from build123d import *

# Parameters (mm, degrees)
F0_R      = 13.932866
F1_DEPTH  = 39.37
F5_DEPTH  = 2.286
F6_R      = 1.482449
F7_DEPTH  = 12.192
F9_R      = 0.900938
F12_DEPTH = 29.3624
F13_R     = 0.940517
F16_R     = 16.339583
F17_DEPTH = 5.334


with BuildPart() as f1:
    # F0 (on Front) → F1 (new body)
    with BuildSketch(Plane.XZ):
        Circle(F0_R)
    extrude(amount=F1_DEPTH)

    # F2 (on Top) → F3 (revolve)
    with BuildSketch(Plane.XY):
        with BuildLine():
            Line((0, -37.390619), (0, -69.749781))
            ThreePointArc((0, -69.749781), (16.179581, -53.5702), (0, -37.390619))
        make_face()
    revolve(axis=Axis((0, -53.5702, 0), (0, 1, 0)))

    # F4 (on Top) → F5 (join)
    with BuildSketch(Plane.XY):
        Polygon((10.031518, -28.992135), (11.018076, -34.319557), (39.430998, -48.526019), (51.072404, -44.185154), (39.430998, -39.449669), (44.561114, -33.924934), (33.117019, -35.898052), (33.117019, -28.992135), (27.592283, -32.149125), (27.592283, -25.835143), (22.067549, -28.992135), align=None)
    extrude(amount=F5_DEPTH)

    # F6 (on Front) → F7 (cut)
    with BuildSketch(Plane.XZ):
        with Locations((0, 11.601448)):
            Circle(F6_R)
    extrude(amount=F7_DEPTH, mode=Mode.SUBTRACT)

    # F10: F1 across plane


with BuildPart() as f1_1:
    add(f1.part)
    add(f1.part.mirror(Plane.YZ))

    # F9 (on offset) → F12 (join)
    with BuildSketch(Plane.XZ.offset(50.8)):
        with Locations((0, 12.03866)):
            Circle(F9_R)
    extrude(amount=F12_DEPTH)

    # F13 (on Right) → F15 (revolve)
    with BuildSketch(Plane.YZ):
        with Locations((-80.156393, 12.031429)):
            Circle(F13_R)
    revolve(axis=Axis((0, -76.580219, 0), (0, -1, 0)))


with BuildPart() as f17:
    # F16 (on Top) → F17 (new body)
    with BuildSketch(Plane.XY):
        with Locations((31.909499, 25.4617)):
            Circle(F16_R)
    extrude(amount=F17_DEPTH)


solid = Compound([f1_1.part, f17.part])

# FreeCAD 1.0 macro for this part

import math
import FreeCAD as App
import Part
import Sketcher
from FreeCAD import Vector
Q = App.Units.Quantity


def add_polygon(sketch, points):
    """Adds a closed chain of lines whose ends are joined by coincident constraints."""
    first, n = sketch.GeometryCount, len(points)
    for a, b in zip(points, points[1:] + points[:1]):
        sketch.addGeometry(Part.LineSegment(App.Vector(*a, 0), App.Vector(*b, 0)), False)
    for i in range(n):
        sketch.addConstraint(Sketcher.Constraint("Coincident", first + i, 2, first + (i + 1) % n, 1))

doc = App.newDocument("Part")
body = doc.addObject("PartDesign::Body", "Body")

# Sketch on XZ plane
sketch1 = body.newObject("Sketcher::SketchObject", "Sketch")
sketch1.AttachmentSupport = (doc.getObject("XZ_Plane"), [""])
sketch1.MapMode = "FlatFace"
sketch1.addGeometry(Part.Circle(Vector(0, 0, 0), Vector(0, 0, 1), 14), False)
sketch1.addConstraint([
    Sketcher.Constraint("Coincident", 0, 3, -1, 1),
    Sketcher.Constraint("Diameter", 0, 27.865732),
])
pad1 = body.newObject("PartDesign::Pad", "Pad")
pad1.Profile = sketch1
pad1.Length = Q("1.55 in")

# Sketch on XY plane
sketch2 = body.newObject("Sketcher::SketchObject", "Sketch001")
sketch2.AttachmentSupport = (doc.getObject("XY_Plane"), [""])
sketch2.MapMode = "FlatFace"
sketch2.addGeometry([
    Part.LineSegment(Vector(0, -37, 0), Vector(0, -70, 0)),
    Part.ArcOfCircle(Part.Circle(Vector(0, -54, 0), Vector(0, 0, 1), 16), math.radians(-90), math.radians(90)),
], False)
sketch2.addConstraint([
    Sketcher.Constraint("Coincident", 0, 1, 1, 2),
    Sketcher.Constraint("Coincident", 1, 1, 0, 2),
    Sketcher.Constraint("Vertical", 0),
    Sketcher.Constraint("PointOnObject", 1, 3, -2),
    Sketcher.Constraint("PointOnObject", 0, 1, -2),
    Sketcher.Constraint("Radius", 1, 16.179581),
    Sketcher.Constraint("DistanceY", 1, 3, -1, 1, 53.5702),
])
revolution = body.newObject("PartDesign::Revolution", "Revolution")
revolution.Profile = sketch2
revolution.ReferenceAxis = (sketch2, ["V_Axis"])
revolution.Angle = 360

# Sketch on XY plane
sketch3 = body.newObject("Sketcher::SketchObject", "Sketch002")
sketch3.AttachmentSupport = (doc.getObject("XY_Plane"), [""])
sketch3.MapMode = "FlatFace"
add_polygon(sketch3, [(10, -29), (11, -34), (39, -49), (51, -44), (39, -39), (45, -34), (33, -36), (33, -29), (28, -32), (28, -26), (22, -29)])  # lines 0-10
sketch3.addConstraint([
    Sketcher.Constraint("Vertical", 6),
    Sketcher.Constraint("Vertical", 8),
    Sketcher.Constraint("Horizontal", 10),
    Sketcher.Constraint("Parallel", 7, 9),
    Sketcher.Constraint("Horizontal", 6, 2, 9, 2),
    Sketcher.Constraint("Vertical", 1, 2, 3, 2),
    Sketcher.Constraint("Equal", 7, 9),
    Sketcher.Constraint("DistanceY", 1, 2, 2, 2, Q("0.1709002 in")),
    Sketcher.Constraint("Distance", 0, 5.418),
    Sketcher.Constraint("DistanceX", 10, 2, 10, 1, 12.036031),
    Sketcher.Constraint("DistanceY", 8, 1, 8, 2, 6.313982),
    Sketcher.Constraint("DistanceX", -1, 1, 1, 2, 39.430998),
    Sketcher.Constraint("DistanceY", 2, 2, 5, 2, 8.287102),
    Sketcher.Constraint("DistanceY", 4, 2, 6, 2, 4.932799),
    Sketcher.Constraint("DistanceX", 10, 2, 6, 2, 23.085501),
    Sketcher.Constraint("Distance", 2, 12.424389),
    Sketcher.Constraint("DistanceY", 6, 1, 6, 2, 6.905917),
    Sketcher.Constraint("DistanceY", 1, 2, -1, 1, 48.526019),
    Sketcher.Constraint("DistanceY", 3, 2, -1, 1, 39.449669),
    Sketcher.Constraint("DistanceX", -1, 1, 5, 2, 33.117019),
    Sketcher.Constraint("DistanceY", 1, 2, 0, 2, 14.206462),
    Sketcher.Constraint("DistanceX", 4, 2, 2, 2, 6.51129),
])
pad2 = body.newObject("PartDesign::Pad", "Pad001")
pad2.Profile = sketch3
pad2.Length = Q("0.09 in")

# Sketch on XZ plane
sketch4 = body.newObject("Sketcher::SketchObject", "Sketch003")
sketch4.AttachmentSupport = (doc.getObject("XZ_Plane"), [""])
sketch4.MapMode = "FlatFace"
sketch4.addGeometry(Part.Circle(Vector(0, 11.6, 0), Vector(0, 0, 1), 1.5), False)
sketch4.addConstraint([
    Sketcher.Constraint("PointOnObject", 0, 3, -2),
    Sketcher.Constraint("Diameter", 0, 2.964898),
    Sketcher.Constraint("DistanceY", -1, 1, 0, 3, 11.601448),
])
pocket1 = body.newObject("PartDesign::Pocket", "Pocket")
pocket1.Profile = sketch4
pocket1.Length = Q("0.48 in")
pocket1.Reversed = True
body2 = doc.addObject("PartDesign::Body", "Body001")
doc.recompute()

body2.BaseFeature = body
doc.recompute()

mirroring = doc.addObject("Part::Mirroring", "Mirroring")
mirroring.Source = body
mirroring.Base = Vector(0, 0, 0)
mirroring.Normal = Vector(1, 0, 0)
body3 = doc.addObject("PartDesign::Body", "Body002")
body3.BaseFeature = mirroring
boolean = body2.newObject("PartDesign::Boolean", "Boolean")
boolean.Type = "Fuse"
boolean.addObjects([body3])
doc.recompute()

# Sketch on XZ plane
sketch5 = body2.newObject("Sketcher::SketchObject", "Sketch004")
sketch5.AttachmentSupport = (doc.getObject("XZ_Plane001"), [""])
sketch5.MapMode = "FlatFace"
sketch5.AttachmentOffset = App.Placement(Vector(0, 0, 2 * 25.4), App.Rotation())
sketch5.addGeometry(Part.Circle(Vector(0, 12, 0), Vector(0, 0, 1), 0.9), False)
sketch5.addConstraint([
    Sketcher.Constraint("PointOnObject", 0, 3, -2),
    Sketcher.Constraint("Diameter", 0, 1.801876),
    Sketcher.Constraint("DistanceY", -1, 1, 0, 3, 12.03866),
])
pad3 = body2.newObject("PartDesign::Pad", "Pad002")
pad3.Profile = sketch5
pad3.Length = Q("1.156 in")

# Sketch on YZ plane
sketch6 = body2.newObject("Sketcher::SketchObject", "Sketch005")
sketch6.AttachmentSupport = (doc.getObject("YZ_Plane001"), [""])
sketch6.MapMode = "FlatFace"
sketch6.addGeometry(Part.Circle(Vector(-80.2, 12, 0), Vector(0, 0, 1), 0.9), False)
sketch6.addConstraint([
    Sketcher.Constraint("Diameter", 0, 1.881034),
    Sketcher.Constraint("DistanceY", -1, 1, 0, 3, 12.031429),
    Sketcher.Constraint("DistanceX", 0, 3, -1, 1, 80.156393),
])
revolution2 = body2.newObject("PartDesign::Revolution", "Revolution001")
revolution2.Profile = sketch6
revolution2.ReferenceAxis = (sketch6, ["H_Axis"])
revolution2.Angle = 360
body4 = doc.addObject("PartDesign::Body", "Body003")

# Sketch on XY plane
sketch7 = body4.newObject("Sketcher::SketchObject", "Sketch006")
sketch7.AttachmentSupport = (doc.getObject("XY_Plane003"), [""])
sketch7.MapMode = "FlatFace"
sketch7.addGeometry(Part.Circle(Vector(32, 25, 0), Vector(0, 0, 1), 16), False)
sketch7.addConstraint([
    Sketcher.Constraint("Diameter", 0, 32.679166),
    Sketcher.Constraint("DistanceX", -1, 1, 0, 3, 31.909499),
    Sketcher.Constraint("DistanceY", -1, 1, 0, 3, 25.4617),
])
pad4 = body4.newObject("PartDesign::Pad", "Pad003")
pad4.Profile = sketch7
pad4.Length = Q("0.21 in")
mirroring.Visibility = False

doc.recompute()
